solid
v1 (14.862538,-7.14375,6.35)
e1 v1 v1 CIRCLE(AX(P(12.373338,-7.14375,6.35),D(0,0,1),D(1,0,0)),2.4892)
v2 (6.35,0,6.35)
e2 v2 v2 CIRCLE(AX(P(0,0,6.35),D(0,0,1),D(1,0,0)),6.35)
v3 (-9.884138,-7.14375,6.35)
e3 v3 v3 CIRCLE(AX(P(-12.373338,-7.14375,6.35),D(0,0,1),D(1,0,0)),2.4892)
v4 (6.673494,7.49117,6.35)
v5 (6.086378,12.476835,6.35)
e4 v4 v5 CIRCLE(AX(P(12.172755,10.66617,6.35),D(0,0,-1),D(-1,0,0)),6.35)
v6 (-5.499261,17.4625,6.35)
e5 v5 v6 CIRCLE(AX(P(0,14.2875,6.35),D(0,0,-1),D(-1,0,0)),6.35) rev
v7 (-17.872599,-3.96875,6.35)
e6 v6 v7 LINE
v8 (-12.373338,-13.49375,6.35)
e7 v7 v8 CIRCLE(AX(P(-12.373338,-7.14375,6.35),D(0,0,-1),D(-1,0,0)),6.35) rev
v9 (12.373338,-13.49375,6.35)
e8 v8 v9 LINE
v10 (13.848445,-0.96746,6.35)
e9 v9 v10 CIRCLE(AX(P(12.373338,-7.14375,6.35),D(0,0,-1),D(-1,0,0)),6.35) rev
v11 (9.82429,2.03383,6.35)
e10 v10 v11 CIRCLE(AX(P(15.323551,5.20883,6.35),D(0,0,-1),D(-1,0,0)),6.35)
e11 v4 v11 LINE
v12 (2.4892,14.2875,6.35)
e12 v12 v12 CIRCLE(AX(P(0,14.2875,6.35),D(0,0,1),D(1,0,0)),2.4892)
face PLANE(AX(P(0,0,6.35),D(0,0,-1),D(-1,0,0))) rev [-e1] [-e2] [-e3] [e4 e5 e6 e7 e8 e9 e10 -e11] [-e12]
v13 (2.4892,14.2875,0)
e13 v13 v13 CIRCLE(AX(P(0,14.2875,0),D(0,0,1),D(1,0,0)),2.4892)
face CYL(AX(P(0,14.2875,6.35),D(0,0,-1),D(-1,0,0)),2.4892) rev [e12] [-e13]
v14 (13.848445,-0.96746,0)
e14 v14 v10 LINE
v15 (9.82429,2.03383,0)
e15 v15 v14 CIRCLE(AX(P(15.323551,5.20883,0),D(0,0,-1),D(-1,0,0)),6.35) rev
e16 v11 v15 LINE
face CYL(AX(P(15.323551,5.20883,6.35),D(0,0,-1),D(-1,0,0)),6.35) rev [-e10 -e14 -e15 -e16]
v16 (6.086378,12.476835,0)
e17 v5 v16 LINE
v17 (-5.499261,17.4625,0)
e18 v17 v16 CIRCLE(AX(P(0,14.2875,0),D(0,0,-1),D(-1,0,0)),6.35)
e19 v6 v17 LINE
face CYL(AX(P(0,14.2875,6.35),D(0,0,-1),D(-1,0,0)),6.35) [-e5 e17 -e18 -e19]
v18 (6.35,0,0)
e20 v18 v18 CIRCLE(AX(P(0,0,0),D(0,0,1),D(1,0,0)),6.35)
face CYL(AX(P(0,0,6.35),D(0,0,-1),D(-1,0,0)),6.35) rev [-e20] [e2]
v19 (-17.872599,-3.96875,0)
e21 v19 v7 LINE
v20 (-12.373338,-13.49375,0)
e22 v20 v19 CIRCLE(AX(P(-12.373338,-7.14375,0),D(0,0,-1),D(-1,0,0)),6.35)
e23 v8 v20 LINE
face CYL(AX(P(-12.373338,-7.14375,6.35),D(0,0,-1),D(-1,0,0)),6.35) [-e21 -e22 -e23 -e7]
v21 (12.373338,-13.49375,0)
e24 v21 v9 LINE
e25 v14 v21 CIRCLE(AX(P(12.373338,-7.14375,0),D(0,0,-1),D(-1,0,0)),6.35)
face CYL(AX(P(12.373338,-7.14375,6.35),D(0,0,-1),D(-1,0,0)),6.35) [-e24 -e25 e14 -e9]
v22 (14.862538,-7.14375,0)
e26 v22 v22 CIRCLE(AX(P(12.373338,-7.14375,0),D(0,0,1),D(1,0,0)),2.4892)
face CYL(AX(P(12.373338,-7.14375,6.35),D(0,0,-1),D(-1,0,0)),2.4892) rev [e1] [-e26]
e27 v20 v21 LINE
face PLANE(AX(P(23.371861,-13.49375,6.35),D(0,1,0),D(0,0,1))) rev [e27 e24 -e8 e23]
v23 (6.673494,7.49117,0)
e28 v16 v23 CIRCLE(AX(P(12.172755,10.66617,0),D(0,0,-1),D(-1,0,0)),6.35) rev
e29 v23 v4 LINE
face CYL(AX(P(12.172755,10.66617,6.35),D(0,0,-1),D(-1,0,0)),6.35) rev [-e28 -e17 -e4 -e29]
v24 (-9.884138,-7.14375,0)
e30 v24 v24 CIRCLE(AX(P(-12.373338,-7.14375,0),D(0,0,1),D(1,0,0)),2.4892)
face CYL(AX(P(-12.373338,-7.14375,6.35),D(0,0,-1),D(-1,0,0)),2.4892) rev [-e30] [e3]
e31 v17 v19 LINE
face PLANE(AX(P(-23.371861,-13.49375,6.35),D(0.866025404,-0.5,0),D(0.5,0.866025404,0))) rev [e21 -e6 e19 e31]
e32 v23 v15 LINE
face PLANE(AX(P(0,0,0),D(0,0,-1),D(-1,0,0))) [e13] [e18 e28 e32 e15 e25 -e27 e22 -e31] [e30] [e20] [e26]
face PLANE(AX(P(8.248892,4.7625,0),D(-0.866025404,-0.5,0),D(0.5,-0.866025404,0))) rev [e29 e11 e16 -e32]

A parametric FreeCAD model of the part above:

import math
import FreeCAD as App
import Part
import Sketcher
Q = App.Units.Quantity


def edges_at(feature, points):
    """Names of the edges that pass closest to the given points."""
    edges = feature.Shape.Edges
    near = lambda p: min(range(len(edges)), key=lambda i: edges[i].distToShape(Part.Vertex(*p))[0])
    return sorted({f"Edge{near(p) + 1}" for p in points})


def add_polygon(sketch, points):
    """Adds a closed chain of lines whose ends are joined by coincident constraints."""
    first, n = sketch.GeometryCount, len(points)
    for a, b in zip(points, points[1:] + points[:1]):
        sketch.addGeometry(Part.LineSegment(App.Vector(*a, 0), App.Vector(*b, 0)), False)
    for i in range(n):
        sketch.addConstraint(Sketcher.Constraint("Coincident", first + i, 2, first + (i + 1) % n, 1))

doc = App.newDocument("Part")
body = doc.addObject("PartDesign::Body", "Body")

sketch1 = body.newObject("Sketcher::SketchObject", "Sketch")
sketch1.AttachmentSupport = (doc.getObject("XY_Plane"), [""])
sketch1.MapMode = "FlatFace"
add_polygon(sketch1, [(23.4, -13.5), (0, 27), (-23.4, -13.5)])
sketch1.addGeometry(Part.Circle(App.Vector(12.4, -7.1, 0), App.Vector(0, 0, 1), 2.5), False)
sketch1.addGeometry(Part.Circle(App.Vector(-12.4, -7.1, 0), App.Vector(0, 0, 1), 2.5), False)
sketch1.addGeometry(Part.Circle(App.Vector(0, 0, 0), App.Vector(0, 0, 1), 6.3), False)
sketch1.addGeometry(Part.Circle(App.Vector(0, 14.3, 0), App.Vector(0, 0, 1), 2.5), False)
sketch1.addConstraint(Sketcher.Constraint("Horizontal", 2))
sketch1.addConstraint(Sketcher.Constraint("Coincident", 5, 3, -1, 1))
sketch1.addConstraint(Sketcher.Constraint("Equal", 3, 4))
sketch1.addConstraint(Sketcher.Constraint("Equal", 4, 6))
sketch1.addConstraint(Sketcher.Constraint("Symmetric", 3, 3, 4, 3, -2))
sketch1.addConstraint(Sketcher.Constraint("PointOnObject", 6, 3, -2))
sketch1.addConstraint(Sketcher.Constraint("PointOnObject", 0, 2, -2))
sketch1.addConstraint(Sketcher.Constraint("Equal", 0, 1))
sketch1.addConstraint(Sketcher.Constraint("Diameter", 5, Q("0.5 in")))
sketch1.addConstraint(Sketcher.Constraint("Diameter", 3, Q("0.196 in")))
sketch1.addConstraint(Sketcher.Constraint("Angle", 0, Q("120 deg")))
sketch1.addConstraint(Sketcher.Constraint("DistanceY", 6, 3, 0, 2, Q("0.5 in")))
sketch1.addConstraint(Sketcher.Constraint("DistanceY", 1, 2, 4, 3, Q("0.25 in")))
sketch1.addConstraint(Sketcher.Constraint("DistanceY", 3, 3, -1, 1, Q("0.28125 in")))
sketch1.addConstraint(Sketcher.Constraint("DistanceY", -1, 1, 6, 3, Q("0.5625 in")))
sketch1.addConstraint(Sketcher.Constraint("DistanceX", 1, 2, 3, 3, Q("35.745199 mm")))
pad1 = body.newObject("PartDesign::Pad", "Pad")
pad1.Profile = sketch1
pad1.Length = Q("0.25 in")
doc.recompute()

fillet = body.newObject("PartDesign::Fillet", "Fillet")
fillet.Base = (pad1, edges_at(pad1, [(0, 26.988, 3.175), (23.372, -13.494, 3.175), (-23.372, -13.494, 3.175)]))
fillet.Radius = Q("0.25 in")

sketch2 = body.newObject("Sketcher::SketchObject", "Sketch001")
sketch2.AttachmentSupport = (doc.getObject("XY_Plane"), [""])
sketch2.MapMode = "FlatFace"
sketch2.AttachmentOffset = App.Placement(App.Vector(0, 0, 0.25 * 25.4), App.Rotation())
sketch2.addGeometry(Part.ArcOfCircle(Part.Circle(App.Vector(0, 14.3, 0), App.Vector(0, 0, 1), 6.4), math.radians(-38), math.radians(0)), False)
sketch2.addGeometry(Part.LineSegment(App.Vector(5, 10.4, 0), App.Vector(11.5, -0.9, 0)), False)
sketch2.addGeometry(Part.ArcOfCircle(Part.Circle(App.Vector(12.4, -7.1, 0), App.Vector(0, 0, 1), 6.4), math.radians(30), math.radians(98)), False)
sketch2.addGeometry(Part.LineSegment(App.Vector(17.9, -4, 0), App.Vector(5.5, 17.5, 0)), False)
sketch2.addGeometry(Part.ArcOfCircle(Part.Circle(App.Vector(0, 14.3, 0), App.Vector(0, 0, 1), 6.4), math.radians(0), math.radians(30)), False)
sketch2.addConstraint(Sketcher.Constraint("Coincident", 0, 1, 1, 1))
sketch2.addConstraint(Sketcher.Constraint("Coincident", 1, 2, 2, 2))
sketch2.addConstraint(Sketcher.Constraint("Tangent", 2, 1, 3, 1))
sketch2.addConstraint(Sketcher.Constraint("Tangent", 3, 2, 4, 2))
sketch2.addConstraint(Sketcher.Constraint("Tangent", 4, 1, 0, 2))
sketch2.addConstraint(Sketcher.Constraint("Equal", 0, 2))
sketch2.addConstraint(Sketcher.Constraint("Equal", 2, 4))
sketch2.addConstraint(Sketcher.Constraint("PointOnObject", 0, 3, -2))
sketch2.addConstraint(Sketcher.Constraint("Parallel", 1, 3))
sketch2.addConstraint(Sketcher.Constraint("Horizontal", 0, 3, 4, 1))
sketch2.addConstraint(Sketcher.Constraint("Radius", 0, Q("0.25 in")))
sketch2.addConstraint(Sketcher.Constraint("Angle", 1, Q("-60 deg")))
sketch2.addConstraint(Sketcher.Constraint("DistanceY", -1, 1, 0, 3, Q("0.5625 in")))
sketch2.addConstraint(Sketcher.Constraint("DistanceY", 2, 3, -1, 1, Q("0.28125 in")))
sketch2.addConstraint(Sketcher.Constraint("Distance", 1, Q("12.973461 mm")))
pocket1 = body.newObject("PartDesign::Pocket", "Pocket")
pocket1.Profile = sketch2
pocket1.Type = "ThroughAll"
doc.recompute()

fillet2 = body.newObject("PartDesign::Fillet", "Fillet001")
fillet2.Base = (pocket1, edges_at(pocket1, [(11.492, -0.855, 3.175), (5.006, 10.38, 3.175)]))
fillet2.Radius = Q("0.25 in")

doc.recompute()
